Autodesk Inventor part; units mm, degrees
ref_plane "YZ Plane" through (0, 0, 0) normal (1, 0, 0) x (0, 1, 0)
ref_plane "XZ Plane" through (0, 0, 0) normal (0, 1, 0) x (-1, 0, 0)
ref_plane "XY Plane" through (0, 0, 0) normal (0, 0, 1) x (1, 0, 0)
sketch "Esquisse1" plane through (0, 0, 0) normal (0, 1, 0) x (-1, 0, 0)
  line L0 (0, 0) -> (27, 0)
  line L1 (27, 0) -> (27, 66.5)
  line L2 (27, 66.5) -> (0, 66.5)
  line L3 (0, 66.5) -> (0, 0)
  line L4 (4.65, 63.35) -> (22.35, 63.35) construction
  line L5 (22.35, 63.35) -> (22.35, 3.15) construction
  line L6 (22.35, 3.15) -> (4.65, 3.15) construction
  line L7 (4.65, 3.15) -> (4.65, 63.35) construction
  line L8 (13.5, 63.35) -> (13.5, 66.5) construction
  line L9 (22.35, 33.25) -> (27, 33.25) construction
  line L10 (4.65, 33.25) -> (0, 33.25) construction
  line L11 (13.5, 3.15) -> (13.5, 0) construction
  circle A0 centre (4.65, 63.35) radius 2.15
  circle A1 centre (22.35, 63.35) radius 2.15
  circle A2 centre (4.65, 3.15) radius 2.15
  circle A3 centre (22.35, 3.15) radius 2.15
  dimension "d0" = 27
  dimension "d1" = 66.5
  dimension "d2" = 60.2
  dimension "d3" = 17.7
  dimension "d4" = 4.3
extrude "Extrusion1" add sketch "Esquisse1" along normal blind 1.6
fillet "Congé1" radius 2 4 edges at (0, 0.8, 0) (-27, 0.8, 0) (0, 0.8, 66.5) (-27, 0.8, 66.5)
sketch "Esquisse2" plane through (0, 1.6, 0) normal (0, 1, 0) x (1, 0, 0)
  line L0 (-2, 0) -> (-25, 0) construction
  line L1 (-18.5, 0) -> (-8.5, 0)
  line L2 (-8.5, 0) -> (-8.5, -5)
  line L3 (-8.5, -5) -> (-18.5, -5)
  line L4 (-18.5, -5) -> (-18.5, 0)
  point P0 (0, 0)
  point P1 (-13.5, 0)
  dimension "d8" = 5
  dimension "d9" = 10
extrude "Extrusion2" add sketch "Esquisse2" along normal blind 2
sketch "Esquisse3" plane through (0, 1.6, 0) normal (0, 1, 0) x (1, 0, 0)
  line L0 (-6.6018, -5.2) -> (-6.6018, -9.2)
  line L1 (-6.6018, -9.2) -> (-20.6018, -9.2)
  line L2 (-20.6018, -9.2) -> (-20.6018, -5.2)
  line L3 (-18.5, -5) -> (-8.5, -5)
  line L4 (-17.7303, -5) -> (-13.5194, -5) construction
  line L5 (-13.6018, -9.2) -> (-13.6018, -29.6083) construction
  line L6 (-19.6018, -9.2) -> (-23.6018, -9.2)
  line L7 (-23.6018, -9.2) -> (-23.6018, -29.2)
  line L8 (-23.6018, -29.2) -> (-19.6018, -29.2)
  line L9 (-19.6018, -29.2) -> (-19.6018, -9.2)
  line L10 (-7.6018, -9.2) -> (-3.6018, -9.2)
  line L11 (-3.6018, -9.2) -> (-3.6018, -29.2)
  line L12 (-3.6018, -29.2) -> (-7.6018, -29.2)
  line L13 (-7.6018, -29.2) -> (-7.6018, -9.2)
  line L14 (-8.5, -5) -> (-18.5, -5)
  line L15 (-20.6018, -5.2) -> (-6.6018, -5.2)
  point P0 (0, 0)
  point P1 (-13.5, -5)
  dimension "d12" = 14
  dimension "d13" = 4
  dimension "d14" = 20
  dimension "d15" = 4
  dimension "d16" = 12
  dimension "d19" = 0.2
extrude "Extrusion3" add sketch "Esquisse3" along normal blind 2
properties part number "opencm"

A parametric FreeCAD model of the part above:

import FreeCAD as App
import Part
import Sketcher

V = App.Vector


def edges_at(feature, points):
    """Names of the edges that pass closest to the given points."""
    edges = feature.Shape.Edges
    near = lambda p: min(range(len(edges)), key=lambda i: edges[i].distToShape(Part.Vertex(*p))[0])
    return sorted({f"Edge{near(p) + 1}" for p in points})

doc = App.newDocument("Part")
params = doc.addObject("Spreadsheet::Sheet", "Params")
for row, (alias, value) in enumerate([
    ("sketch1_diameter", "4.3 mm"),
    ("sketch1_width", "27 mm"),
    ("sketch1_height", "66.5 mm"),
    ("pad1_length", "1.6 mm"),
    ("fillet_radius", "2 mm"),
    ("sketch2_width", "10 mm"),
    ("sketch2_height", "5 mm"),
    ("pad2_length", "2 mm"),
    ("sketch3_width", "14 mm"),
    ("sketch3_width2", "4 mm"),
    ("sketch3_width3", "12 mm"),
    ("sketch3_height", "20 mm"),
    ("pad3_length", "2 mm"),
], start=1):
    params.set(f"A{row}", alias)
    params.set(f"B{row}", "=" + value)
    params.setAlias(f"B{row}", alias)

body = doc.addObject("PartDesign::Body", "Body")

# Sketch on XZ plane
sketch1 = doc.addObject("Sketcher::SketchObject", "Sketch")
body.addObject(sketch1)
sketch1.AttachmentSupport = (doc.XZ_Plane, [""])
sketch1.MapMode = "FlatFace"
sketch1.addGeometry(Part.LineSegment(V(0, 66.5, 0), V(0, 0, 0)), False)
sketch1.addGeometry(Part.LineSegment(V(0, 0, 0), V(-27, 0, 0)), False)
sketch1.addGeometry(Part.LineSegment(V(-27, 0, 0), V(-27, 66.5, 0)), False)
sketch1.addGeometry(Part.LineSegment(V(-27, 66.5, 0), V(0, 66.5, 0)), False)
sketch1.addGeometry(Part.Circle(V(-4.7, 3.1, 0), V(0, 0, 1), 2.1), False)
sketch1.addGeometry(Part.Circle(V(-22.4, 3.1, 0), V(0, 0, 1), 2.1), False)
sketch1.addGeometry(Part.Circle(V(-4.7, 63.4, 0), V(0, 0, 1), 2.1), False)
sketch1.addGeometry(Part.Circle(V(-22.4, 63.4, 0), V(0, 0, 1), 2.1), False)
sketch1.addConstraint(Sketcher.Constraint("Coincident", 0, 2, 1, 1))
sketch1.addConstraint(Sketcher.Constraint("Coincident", 1, 2, 2, 1))
sketch1.addConstraint(Sketcher.Constraint("Coincident", 2, 2, 3, 1))
sketch1.addConstraint(Sketcher.Constraint("Coincident", 3, 2, 0, 1))
sketch1.addConstraint(Sketcher.Constraint("Vertical", 0))
sketch1.addConstraint(Sketcher.Constraint("Horizontal", 1))
sketch1.addConstraint(Sketcher.Constraint("Vertical", 2))
sketch1.addConstraint(Sketcher.Constraint("Horizontal", 3))
sketch1.addConstraint(Sketcher.Constraint("Coincident", 0, 2, -1, 1))
sketch1.addConstraint(Sketcher.Constraint("Equal", 4, 5))
sketch1.addConstraint(Sketcher.Constraint("Equal", 5, 6))
sketch1.addConstraint(Sketcher.Constraint("Equal", 6, 7))
sketch1.addConstraint(Sketcher.Constraint("Horizontal", 4, 3, 5, 3))
sketch1.addConstraint(Sketcher.Constraint("Horizontal", 6, 3, 7, 3))
sketch1.addConstraint(Sketcher.Constraint("Vertical", 4, 3, 6, 3))
sketch1.addConstraint(Sketcher.Constraint("Vertical", 5, 3, 7, 3))
sketch1.addConstraint(Sketcher.Constraint("Diameter", 4, 4.3))
sketch1.addConstraint(Sketcher.Constraint("DistanceX", 1, 2, 1, 1, 27.0))
sketch1.addConstraint(Sketcher.Constraint("DistanceY", 0, 2, 0, 1, 66.5))
sketch1.addConstraint(Sketcher.Constraint("DistanceX", 5, 3, 4, 3, 17.7))
sketch1.addConstraint(Sketcher.Constraint("DistanceY", 4, 3, 6, 3, 60.2))
sketch1.addConstraint(Sketcher.Constraint("DistanceX", 4, 3, -1, 1, 4.65))
sketch1.addConstraint(Sketcher.Constraint("DistanceY", -1, 1, 4, 3, 3.15))
sketch1.setExpression("Constraints[16]", "Params.sketch1_diameter")
sketch1.setExpression("Constraints[17]", "Params.sketch1_width")
sketch1.setExpression("Constraints[18]", "Params.sketch1_height")
pad1 = doc.addObject("PartDesign::Pad", "Pad")
body.addObject(pad1)
pad1.Profile = sketch1
pad1.setExpression("Length", "Params.pad1_length")
pad1.Reversed = True
doc.recompute()

fillet = doc.addObject("PartDesign::Fillet", "Fillet")
body.addObject(fillet)
fillet.Base = (pad1, edges_at(pad1, [
    (0, 0.8, 0),
    (-27, 0.8, 0),
    (0, 0.8, 66.5),
    (-27, 0.8, 66.5),
]))
fillet.setExpression("Radius", "Params.fillet_radius")

# Sketch on XZ plane
sketch2 = doc.addObject("Sketcher::SketchObject", "Sketch001")
body.addObject(sketch2)
sketch2.AttachmentSupport = (doc.XZ_Plane, [""])
sketch2.MapMode = "FlatFace"
sketch2.AttachmentOffset = App.Placement(V(0, 0, -1.6), App.Rotation())
sketch2.addGeometry(Part.LineSegment(V(-8, 0, 0), V(-18, 0, 0)), False)
sketch2.addGeometry(Part.LineSegment(V(-18, 0, 0), V(-18, 5, 0)), False)
sketch2.addGeometry(Part.LineSegment(V(-18, 5, 0), V(-8, 5, 0)), False)
sketch2.addGeometry(Part.LineSegment(V(-8, 5, 0), V(-8, 0, 0)), False)
sketch2.addConstraint(Sketcher.Constraint("Coincident", 0, 2, 1, 1))
sketch2.addConstraint(Sketcher.Constraint("Coincident", 1, 2, 2, 1))
sketch2.addConstraint(Sketcher.Constraint("Coincident", 2, 2, 3, 1))
sketch2.addConstraint(Sketcher.Constraint("Coincident", 3, 2, 0, 1))
sketch2.addConstraint(Sketcher.Constraint("Horizontal", 0))
sketch2.addConstraint(Sketcher.Constraint("Vertical", 1))
sketch2.addConstraint(Sketcher.Constraint("Horizontal", 2))
sketch2.addConstraint(Sketcher.Constraint("Vertical", 3))
sketch2.addConstraint(Sketcher.Constraint("PointOnObject", 0, 2, -1))
sketch2.addConstraint(Sketcher.Constraint("DistanceX", 0, 2, 0, 1, 10.0))
sketch2.addConstraint(Sketcher.Constraint("DistanceY", 1, 1, 1, 2, 5.0))
sketch2.addConstraint(Sketcher.Constraint("DistanceX", 0, 2, -1, 1, 18.5))
sketch2.setExpression("Constraints[9]", "Params.sketch2_width")
sketch2.setExpression("Constraints[10]", "Params.sketch2_height")
pad2 = doc.addObject("PartDesign::Pad", "Pad001")
body.addObject(pad2)
pad2.Profile = sketch2
pad2.setExpression("Length", "Params.pad2_length")
pad2.Reversed = True

# Sketch on XZ plane
sketch3 = doc.addObject("Sketcher::SketchObject", "Sketch002")
body.addObject(sketch3)
sketch3.AttachmentSupport = (doc.XZ_Plane, [""])
sketch3.MapMode = "FlatFace"
sketch3.AttachmentOffset = App.Placement(V(0, 0, -1.6), App.Rotation())
sketch3.addGeometry(Part.LineSegment(V(-6.6, 9.2, 0), V(-6.6, 5.2, 0)), False)
sketch3.addGeometry(Part.LineSegment(V(-6.6, 5.2, 0), V(-20.6, 5.2, 0)), False)
sketch3.addGeometry(Part.LineSegment(V(-20.6, 5.2, 0), V(-20.6, 9.2, 0)), False)
sketch3.addGeometry(Part.LineSegment(V(-20.6, 9.2, 0), V(-23.6, 9.2, 0)), False)
sketch3.addGeometry(Part.LineSegment(V(-23.6, 9.2, 0), V(-23.6, 29.2, 0)), False)
sketch3.addGeometry(Part.LineSegment(V(-23.6, 29.2, 0), V(-19.6, 29.2, 0)), False)
sketch3.addGeometry(Part.LineSegment(V(-19.6, 29.2, 0), V(-19.6, 9.2, 0)), False)
sketch3.addGeometry(Part.LineSegment(V(-19.6, 9.2, 0), V(-7.6, 9.2, 0)), False)
sketch3.addGeometry(Part.LineSegment(V(-7.6, 9.2, 0), V(-7.6, 29.2, 0)), False)
sketch3.addGeometry(Part.LineSegment(V(-7.6, 29.2, 0), V(-3.6, 29.2, 0)), False)
sketch3.addGeometry(Part.LineSegment(V(-3.6, 29.2, 0), V(-3.6, 9.2, 0)), False)
sketch3.addGeometry(Part.LineSegment(V(-3.6, 9.2, 0), V(-6.6, 9.2, 0)), False)
sketch3.addConstraint(Sketcher.Constraint("Coincident", 0, 2, 1, 1))
sketch3.addConstraint(Sketcher.Constraint("Coincident", 1, 2, 2, 1))
sketch3.addConstraint(Sketcher.Constraint("Coincident", 2, 2, 3, 1))
sketch3.addConstraint(Sketcher.Constraint("Coincident", 3, 2, 4, 1))
sketch3.addConstraint(Sketcher.Constraint("Coincident", 4, 2, 5, 1))
sketch3.addConstraint(Sketcher.Constraint("Coincident", 5, 2, 6, 1))
sketch3.addConstraint(Sketcher.Constraint("Coincident", 6, 2, 7, 1))
sketch3.addConstraint(Sketcher.Constraint("Coincident", 7, 2, 8, 1))
sketch3.addConstraint(Sketcher.Constraint("Coincident", 8, 2, 9, 1))
sketch3.addConstraint(Sketcher.Constraint("Coincident", 9, 2, 10, 1))
sketch3.addConstraint(Sketcher.Constraint("Coincident", 10, 2, 11, 1))
sketch3.addConstraint(Sketcher.Constraint("Coincident", 11, 2, 0, 1))
sketch3.addConstraint(Sketcher.Constraint("Vertical", 0))
sketch3.addConstraint(Sketcher.Constraint("Horizontal", 1))
sketch3.addConstraint(Sketcher.Constraint("Vertical", 2))
sketch3.addConstraint(Sketcher.Constraint("Horizontal", 3))
sketch3.addConstraint(Sketcher.Constraint("Vertical", 4))
sketch3.addConstraint(Sketcher.Constraint("Horizontal", 5))
sketch3.addConstraint(Sketcher.Constraint("Vertical", 6))
sketch3.addConstraint(Sketcher.Constraint("Horizontal", 7))
sketch3.addConstraint(Sketcher.Constraint("Vertical", 8))
sketch3.addConstraint(Sketcher.Constraint("Horizontal", 9))
sketch3.addConstraint(Sketcher.Constraint("Vertical", 10))
sketch3.addConstraint(Sketcher.Constraint("Horizontal", 11))
sketch3.addConstraint(Sketcher.Constraint("Horizontal", 3, 2, 6, 2))
sketch3.addConstraint(Sketcher.Constraint("Horizontal", 5, 2, 8, 2))
sketch3.addConstraint(Sketcher.Constraint("Horizontal", 7, 2, 10, 2))
sketch3.addConstraint(Sketcher.Constraint("Equal", 5, 9))
sketch3.addConstraint(Sketcher.Constraint("Equal", 3, 11))
sketch3.addConstraint(Sketcher.Constraint("Equal", 9, 0))
sketch3.addConstraint(Sketcher.Constraint("DistanceX", 1, 2, 1, 1, 14.0))
sketch3.addConstraint(Sketcher.Constraint("DistanceX", 5, 1, 5, 2, 4.0))
sketch3.addConstraint(Sketcher.Constraint("DistanceX", 7, 1, 7, 2, 12.0))
sketch3.addConstraint(Sketcher.Constraint("DistanceY", 4, 1, 4, 2, 20.0))
sketch3.addConstraint(Sketcher.Constraint("DistanceY", -1, 1, 0, 2, 5.2))
sketch3.addConstraint(Sketcher.Constraint("DistanceX", 0, 2, -1, 1, 6.6018))
sketch3.setExpression("Constraints[30]", "Params.sketch3_width")
sketch3.setExpression("Constraints[31]", "Params.sketch3_width2")
sketch3.setExpression("Constraints[32]", "Params.sketch3_width3")
sketch3.setExpression("Constraints[33]", "Params.sketch3_height")
pad3 = doc.addObject("PartDesign::Pad", "Pad002")
body.addObject(pad3)
pad3.Profile = sketch3
pad3.setExpression("Length", "Params.pad3_length")
pad3.Reversed = True

doc.recompute()
